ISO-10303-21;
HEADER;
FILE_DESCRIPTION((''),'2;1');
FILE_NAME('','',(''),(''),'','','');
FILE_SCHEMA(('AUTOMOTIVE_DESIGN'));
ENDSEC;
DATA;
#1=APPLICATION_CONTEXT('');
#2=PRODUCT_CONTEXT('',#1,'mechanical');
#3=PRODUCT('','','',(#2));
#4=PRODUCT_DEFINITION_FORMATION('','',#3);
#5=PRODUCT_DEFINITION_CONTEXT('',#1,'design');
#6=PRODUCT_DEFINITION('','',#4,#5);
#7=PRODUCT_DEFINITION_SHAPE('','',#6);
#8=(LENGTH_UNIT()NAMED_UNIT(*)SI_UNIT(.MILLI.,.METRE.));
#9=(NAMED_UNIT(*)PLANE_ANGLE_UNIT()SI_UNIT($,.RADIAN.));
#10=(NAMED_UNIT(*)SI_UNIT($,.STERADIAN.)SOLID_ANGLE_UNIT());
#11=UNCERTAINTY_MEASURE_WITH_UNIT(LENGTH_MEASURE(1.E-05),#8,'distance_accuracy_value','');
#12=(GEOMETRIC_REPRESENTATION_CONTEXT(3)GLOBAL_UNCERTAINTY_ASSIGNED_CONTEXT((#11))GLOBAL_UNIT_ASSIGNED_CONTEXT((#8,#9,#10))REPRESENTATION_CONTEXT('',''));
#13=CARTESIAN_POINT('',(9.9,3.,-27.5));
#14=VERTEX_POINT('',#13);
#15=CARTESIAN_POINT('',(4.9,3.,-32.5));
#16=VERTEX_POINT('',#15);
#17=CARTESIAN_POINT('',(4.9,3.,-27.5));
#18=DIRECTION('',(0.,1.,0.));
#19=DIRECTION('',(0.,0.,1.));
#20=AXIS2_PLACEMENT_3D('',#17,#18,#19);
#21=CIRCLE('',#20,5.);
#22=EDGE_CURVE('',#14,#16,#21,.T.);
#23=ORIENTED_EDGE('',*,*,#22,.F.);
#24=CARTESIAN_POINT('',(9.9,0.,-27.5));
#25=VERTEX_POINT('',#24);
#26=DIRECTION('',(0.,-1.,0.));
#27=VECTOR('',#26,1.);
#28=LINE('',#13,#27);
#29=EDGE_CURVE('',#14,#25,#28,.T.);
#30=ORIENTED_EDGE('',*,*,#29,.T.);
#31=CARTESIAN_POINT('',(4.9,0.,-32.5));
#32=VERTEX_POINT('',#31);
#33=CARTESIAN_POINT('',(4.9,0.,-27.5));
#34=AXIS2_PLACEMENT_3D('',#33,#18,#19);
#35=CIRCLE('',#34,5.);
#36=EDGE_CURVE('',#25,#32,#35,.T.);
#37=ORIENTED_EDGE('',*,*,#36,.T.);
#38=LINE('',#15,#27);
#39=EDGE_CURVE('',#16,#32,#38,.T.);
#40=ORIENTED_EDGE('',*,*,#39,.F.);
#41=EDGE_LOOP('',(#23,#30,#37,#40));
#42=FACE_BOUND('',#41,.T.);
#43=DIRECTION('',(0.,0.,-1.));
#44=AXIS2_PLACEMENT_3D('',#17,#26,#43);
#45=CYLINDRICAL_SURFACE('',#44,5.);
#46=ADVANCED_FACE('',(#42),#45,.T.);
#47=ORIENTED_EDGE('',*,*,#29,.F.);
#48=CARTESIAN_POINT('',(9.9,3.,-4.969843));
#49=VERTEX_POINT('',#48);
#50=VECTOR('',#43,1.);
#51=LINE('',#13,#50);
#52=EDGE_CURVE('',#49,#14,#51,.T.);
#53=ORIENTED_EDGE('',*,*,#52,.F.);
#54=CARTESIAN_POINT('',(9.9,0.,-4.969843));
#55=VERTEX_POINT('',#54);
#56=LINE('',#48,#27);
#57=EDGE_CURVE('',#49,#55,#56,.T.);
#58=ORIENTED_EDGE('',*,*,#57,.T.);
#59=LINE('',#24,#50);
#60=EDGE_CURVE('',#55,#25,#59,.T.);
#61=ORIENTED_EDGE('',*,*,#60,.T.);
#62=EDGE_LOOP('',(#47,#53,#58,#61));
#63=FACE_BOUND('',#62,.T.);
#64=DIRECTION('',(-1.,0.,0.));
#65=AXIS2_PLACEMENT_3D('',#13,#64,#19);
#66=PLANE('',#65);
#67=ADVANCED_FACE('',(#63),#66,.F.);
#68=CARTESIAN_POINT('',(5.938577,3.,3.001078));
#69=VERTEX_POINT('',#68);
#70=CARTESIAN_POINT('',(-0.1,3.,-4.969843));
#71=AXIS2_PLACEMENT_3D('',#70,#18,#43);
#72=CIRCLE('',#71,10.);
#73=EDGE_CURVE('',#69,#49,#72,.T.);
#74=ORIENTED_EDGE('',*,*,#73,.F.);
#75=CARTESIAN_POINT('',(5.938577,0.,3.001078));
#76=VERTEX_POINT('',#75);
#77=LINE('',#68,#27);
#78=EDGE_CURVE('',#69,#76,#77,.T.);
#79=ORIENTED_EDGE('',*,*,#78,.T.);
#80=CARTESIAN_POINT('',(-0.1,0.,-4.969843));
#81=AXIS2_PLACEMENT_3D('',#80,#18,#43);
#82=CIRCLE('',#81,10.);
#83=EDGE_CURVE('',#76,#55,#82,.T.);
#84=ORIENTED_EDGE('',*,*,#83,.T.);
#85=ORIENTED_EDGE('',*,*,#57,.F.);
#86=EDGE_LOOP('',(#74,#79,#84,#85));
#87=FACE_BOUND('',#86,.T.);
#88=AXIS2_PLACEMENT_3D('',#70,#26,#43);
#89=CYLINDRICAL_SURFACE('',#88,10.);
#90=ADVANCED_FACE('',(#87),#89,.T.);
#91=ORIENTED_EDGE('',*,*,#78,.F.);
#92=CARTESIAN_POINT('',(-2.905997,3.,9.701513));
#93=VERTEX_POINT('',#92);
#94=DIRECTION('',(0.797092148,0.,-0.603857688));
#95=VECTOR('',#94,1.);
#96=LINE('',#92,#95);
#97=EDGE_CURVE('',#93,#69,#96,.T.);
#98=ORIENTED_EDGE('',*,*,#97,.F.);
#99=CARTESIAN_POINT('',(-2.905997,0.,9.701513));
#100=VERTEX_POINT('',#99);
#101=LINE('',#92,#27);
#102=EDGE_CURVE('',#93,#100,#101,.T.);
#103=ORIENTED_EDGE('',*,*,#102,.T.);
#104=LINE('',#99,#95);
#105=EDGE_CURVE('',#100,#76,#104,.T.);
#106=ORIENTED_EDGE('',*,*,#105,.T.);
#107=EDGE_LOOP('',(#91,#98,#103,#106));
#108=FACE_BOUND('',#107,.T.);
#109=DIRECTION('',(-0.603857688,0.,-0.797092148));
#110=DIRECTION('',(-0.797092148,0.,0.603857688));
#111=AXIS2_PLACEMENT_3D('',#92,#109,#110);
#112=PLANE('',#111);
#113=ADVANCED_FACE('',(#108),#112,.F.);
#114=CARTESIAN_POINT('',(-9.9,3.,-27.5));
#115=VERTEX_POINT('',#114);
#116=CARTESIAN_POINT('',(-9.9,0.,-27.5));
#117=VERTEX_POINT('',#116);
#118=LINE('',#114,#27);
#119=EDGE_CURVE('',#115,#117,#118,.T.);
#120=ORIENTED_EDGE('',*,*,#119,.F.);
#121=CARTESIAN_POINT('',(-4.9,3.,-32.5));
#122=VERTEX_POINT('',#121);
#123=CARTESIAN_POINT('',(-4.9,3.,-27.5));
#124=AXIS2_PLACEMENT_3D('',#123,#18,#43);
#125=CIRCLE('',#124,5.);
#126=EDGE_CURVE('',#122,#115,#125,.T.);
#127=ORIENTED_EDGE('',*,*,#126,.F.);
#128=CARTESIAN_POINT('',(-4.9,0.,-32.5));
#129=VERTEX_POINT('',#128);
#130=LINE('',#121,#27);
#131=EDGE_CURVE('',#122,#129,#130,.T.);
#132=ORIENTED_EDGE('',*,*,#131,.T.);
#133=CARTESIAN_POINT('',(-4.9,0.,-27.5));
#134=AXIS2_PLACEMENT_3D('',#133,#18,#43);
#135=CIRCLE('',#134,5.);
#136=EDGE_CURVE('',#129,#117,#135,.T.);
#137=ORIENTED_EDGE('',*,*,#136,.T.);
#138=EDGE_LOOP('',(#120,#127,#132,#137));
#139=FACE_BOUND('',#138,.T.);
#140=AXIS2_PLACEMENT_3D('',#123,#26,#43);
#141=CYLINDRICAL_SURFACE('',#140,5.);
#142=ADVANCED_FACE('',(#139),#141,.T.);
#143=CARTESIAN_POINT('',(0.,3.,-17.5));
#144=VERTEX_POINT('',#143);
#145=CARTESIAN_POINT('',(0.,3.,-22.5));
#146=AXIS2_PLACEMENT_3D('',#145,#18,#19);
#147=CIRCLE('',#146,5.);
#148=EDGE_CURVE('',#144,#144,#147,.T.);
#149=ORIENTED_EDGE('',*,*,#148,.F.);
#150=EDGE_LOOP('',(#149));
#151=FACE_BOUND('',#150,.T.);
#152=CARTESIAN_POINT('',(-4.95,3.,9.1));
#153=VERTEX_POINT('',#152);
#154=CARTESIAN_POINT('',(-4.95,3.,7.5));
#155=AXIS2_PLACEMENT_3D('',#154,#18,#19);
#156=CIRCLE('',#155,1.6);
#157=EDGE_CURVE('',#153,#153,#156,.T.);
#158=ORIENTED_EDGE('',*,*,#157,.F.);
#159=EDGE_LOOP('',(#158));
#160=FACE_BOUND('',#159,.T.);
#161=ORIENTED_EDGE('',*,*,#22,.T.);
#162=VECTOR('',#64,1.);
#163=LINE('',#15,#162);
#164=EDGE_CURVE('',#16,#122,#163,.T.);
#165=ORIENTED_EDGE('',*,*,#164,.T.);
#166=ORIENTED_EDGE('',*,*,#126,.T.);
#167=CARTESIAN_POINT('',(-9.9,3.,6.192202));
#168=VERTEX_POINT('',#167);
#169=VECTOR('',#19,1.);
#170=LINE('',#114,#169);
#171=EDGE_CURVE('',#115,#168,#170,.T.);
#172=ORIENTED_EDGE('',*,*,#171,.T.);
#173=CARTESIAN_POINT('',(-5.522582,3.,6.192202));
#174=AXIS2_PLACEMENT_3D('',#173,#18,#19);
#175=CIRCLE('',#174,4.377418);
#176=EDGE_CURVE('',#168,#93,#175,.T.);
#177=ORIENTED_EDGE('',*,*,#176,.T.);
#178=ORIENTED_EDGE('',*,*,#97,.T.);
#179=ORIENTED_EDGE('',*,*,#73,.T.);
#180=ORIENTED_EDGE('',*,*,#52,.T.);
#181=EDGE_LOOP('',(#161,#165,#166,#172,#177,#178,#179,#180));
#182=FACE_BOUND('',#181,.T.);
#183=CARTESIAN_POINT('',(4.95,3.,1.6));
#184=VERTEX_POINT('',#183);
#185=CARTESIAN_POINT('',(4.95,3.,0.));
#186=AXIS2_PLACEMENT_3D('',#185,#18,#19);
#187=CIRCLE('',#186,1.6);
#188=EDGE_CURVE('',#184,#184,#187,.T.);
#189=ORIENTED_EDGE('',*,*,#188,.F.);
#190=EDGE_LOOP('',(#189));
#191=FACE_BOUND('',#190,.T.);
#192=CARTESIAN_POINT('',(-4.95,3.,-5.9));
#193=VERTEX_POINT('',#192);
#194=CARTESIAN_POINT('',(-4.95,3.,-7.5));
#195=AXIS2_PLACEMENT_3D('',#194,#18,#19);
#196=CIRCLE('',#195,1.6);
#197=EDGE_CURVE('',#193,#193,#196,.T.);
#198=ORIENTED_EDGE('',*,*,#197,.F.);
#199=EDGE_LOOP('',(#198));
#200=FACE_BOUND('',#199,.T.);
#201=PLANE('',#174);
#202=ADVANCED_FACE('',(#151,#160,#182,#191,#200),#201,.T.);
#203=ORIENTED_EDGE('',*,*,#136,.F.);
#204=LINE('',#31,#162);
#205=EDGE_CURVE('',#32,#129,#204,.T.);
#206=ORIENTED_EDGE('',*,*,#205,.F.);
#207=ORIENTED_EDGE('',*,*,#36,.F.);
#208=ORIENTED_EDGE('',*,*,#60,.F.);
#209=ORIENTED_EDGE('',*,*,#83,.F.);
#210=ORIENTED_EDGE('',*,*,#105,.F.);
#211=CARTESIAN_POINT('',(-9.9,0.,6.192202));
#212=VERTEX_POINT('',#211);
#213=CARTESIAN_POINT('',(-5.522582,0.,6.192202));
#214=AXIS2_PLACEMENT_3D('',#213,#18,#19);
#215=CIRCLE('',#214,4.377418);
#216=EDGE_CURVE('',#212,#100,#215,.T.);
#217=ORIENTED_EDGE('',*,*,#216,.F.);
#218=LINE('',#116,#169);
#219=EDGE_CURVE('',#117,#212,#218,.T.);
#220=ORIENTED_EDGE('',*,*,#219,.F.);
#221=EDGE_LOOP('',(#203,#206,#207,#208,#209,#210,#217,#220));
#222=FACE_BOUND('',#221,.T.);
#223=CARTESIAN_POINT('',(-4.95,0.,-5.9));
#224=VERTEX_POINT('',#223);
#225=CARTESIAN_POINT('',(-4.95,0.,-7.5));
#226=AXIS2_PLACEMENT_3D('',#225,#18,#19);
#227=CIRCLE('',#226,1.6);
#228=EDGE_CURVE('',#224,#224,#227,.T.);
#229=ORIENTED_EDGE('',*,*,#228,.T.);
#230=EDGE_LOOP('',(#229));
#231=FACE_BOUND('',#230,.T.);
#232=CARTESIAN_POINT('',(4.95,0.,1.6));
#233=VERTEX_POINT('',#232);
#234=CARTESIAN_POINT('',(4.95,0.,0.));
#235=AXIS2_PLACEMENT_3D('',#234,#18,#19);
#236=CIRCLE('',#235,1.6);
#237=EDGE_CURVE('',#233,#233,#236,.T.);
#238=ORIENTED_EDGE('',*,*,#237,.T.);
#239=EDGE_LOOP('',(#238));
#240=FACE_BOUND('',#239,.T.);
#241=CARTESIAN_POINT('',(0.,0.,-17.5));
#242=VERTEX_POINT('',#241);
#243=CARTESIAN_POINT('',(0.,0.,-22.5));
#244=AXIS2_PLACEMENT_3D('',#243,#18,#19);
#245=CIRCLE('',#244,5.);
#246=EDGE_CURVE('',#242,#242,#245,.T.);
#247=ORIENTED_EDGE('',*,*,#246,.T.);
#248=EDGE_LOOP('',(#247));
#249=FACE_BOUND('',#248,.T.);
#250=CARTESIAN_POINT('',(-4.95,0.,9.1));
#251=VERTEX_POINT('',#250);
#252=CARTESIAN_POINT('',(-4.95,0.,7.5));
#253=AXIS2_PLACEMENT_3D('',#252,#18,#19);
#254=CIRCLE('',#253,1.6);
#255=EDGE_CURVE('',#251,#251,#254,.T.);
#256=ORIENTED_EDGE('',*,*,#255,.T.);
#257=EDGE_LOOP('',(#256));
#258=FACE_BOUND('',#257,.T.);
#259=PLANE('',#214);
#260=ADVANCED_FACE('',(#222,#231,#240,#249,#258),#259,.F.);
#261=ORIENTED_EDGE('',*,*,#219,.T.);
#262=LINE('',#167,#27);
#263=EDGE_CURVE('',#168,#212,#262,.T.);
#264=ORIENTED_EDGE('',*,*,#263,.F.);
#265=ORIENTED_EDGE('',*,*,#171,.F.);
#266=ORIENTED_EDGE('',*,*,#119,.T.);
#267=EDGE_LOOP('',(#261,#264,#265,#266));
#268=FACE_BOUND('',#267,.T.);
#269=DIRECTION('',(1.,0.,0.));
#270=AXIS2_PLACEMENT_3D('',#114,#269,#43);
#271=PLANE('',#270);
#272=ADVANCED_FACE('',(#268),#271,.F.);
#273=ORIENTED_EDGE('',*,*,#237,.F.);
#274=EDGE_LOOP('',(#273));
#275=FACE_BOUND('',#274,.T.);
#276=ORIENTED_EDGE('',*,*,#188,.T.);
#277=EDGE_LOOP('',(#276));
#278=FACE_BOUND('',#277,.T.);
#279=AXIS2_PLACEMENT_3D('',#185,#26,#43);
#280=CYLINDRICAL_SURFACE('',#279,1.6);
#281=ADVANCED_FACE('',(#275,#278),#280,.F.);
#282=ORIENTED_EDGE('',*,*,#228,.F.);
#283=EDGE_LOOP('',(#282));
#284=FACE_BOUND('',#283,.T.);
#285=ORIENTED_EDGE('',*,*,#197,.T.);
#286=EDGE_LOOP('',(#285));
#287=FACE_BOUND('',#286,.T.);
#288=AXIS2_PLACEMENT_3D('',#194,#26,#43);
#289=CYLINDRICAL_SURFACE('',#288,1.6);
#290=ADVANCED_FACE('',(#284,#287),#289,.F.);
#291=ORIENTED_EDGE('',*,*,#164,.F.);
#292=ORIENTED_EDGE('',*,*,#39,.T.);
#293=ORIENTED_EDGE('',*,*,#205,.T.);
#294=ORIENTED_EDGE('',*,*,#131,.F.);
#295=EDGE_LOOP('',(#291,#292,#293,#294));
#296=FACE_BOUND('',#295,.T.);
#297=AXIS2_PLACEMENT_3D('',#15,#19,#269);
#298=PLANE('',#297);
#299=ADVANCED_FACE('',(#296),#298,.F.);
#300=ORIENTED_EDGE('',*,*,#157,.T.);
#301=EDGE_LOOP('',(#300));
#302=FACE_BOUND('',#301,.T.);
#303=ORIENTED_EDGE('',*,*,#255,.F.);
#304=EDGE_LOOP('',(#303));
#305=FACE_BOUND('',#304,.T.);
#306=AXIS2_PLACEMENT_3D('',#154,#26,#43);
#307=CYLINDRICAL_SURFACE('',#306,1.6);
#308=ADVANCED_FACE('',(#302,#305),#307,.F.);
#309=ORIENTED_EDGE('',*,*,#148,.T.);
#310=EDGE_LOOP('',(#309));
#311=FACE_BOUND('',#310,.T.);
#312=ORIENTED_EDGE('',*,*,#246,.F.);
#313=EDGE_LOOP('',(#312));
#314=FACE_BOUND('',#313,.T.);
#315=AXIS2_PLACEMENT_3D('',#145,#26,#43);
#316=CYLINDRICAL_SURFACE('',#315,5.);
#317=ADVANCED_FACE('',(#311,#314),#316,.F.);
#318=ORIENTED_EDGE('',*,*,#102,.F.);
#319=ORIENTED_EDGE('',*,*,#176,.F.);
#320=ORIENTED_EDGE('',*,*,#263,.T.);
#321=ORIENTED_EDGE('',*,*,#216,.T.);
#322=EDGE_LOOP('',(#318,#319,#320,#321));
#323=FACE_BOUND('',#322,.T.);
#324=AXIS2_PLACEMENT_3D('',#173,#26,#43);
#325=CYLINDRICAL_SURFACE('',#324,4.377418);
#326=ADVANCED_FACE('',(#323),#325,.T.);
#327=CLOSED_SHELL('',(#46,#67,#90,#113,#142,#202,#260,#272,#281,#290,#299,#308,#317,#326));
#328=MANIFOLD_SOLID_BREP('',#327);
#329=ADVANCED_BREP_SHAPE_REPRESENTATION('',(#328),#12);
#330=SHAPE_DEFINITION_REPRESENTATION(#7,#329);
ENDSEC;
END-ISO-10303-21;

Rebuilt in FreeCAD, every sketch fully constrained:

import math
import FreeCAD as App
import Part
import Sketcher
from FreeCAD import Vector

doc = App.newDocument("Part")
body = doc.addObject("PartDesign::Body", "Body")

sketch1 = body.newObject("Sketcher::SketchObject", "Sketch")
sketch1.AttachmentSupport = (doc.getObject("XZ_Plane"), [""])
sketch1.MapMode = "FlatFace"
sketch1.addGeometry([
    Part.LineSegment(Vector(-9.9, -27.5, 0), Vector(-9.9, 6.192202, 0)),
    Part.ArcOfCircle(Part.Circle(Vector(-5.522582, 6.192202, 0), Vector(0, 0, 1), 4.377418), math.radians(53.29134), math.radians(180)),
    Part.LineSegment(Vector(-2.905997, 9.701513, 0), Vector(5.938577, 3.001078, 0)),
    Part.ArcOfCircle(Part.Circle(Vector(-0.1, -4.969843, 0), Vector(0, 0, 1), 10), math.radians(0), math.radians(52.853313)),
    Part.LineSegment(Vector(9.9, -4.969843, 0), Vector(9.9, -27.5, 0)),
    Part.ArcOfCircle(Part.Circle(Vector(4.9, -27.5, 0), Vector(0, 0, 1), 5), math.radians(-90), math.radians(0)),
    Part.LineSegment(Vector(4.9, -32.5, 0), Vector(-4.9, -32.5, 0)),
    Part.ArcOfCircle(Part.Circle(Vector(-4.9, -27.5, 0), Vector(0, 0, 1), 5), math.radians(180), math.radians(270)),
    Part.Circle(Vector(-4.95, 7.5, 0), Vector(0, 0, 1), 1.6),
    Part.Circle(Vector(-4.95, -7.5, 0), Vector(0, 0, 1), 1.6),
    Part.Circle(Vector(4.95, 0, 0), Vector(0, 0, 1), 1.6),
    Part.Circle(Vector(0, -22.5, 0), Vector(0, 0, 1), 5),
], False)
sketch1.addConstraint([
    Sketcher.Constraint("Tangent", 0, 2, 1, 2),
    Sketcher.Constraint("Coincident", 1, 1, 2, 1),
    Sketcher.Constraint("Tangent", 2, 2, 3, 2),
    Sketcher.Constraint("Tangent", 3, 1, 4, 1),
    Sketcher.Constraint("Tangent", 4, 2, 5, 2),
    Sketcher.Constraint("Tangent", 5, 1, 6, 1),
    Sketcher.Constraint("Tangent", 6, 2, 7, 2),
    Sketcher.Constraint("Tangent", 7, 1, 0, 1),
    Sketcher.Constraint("Vertical", 0),
    Sketcher.Constraint("Vertical", 4),
    Sketcher.Constraint("Horizontal", 6),
    Sketcher.Constraint("Equal", 5, 7),
    Sketcher.Constraint("Equal", 8, 9),
    Sketcher.Constraint("Equal", 9, 10),
    Sketcher.Constraint("Equal", 7, 11),
    Sketcher.Constraint("Symmetric", 8, 3, 9, 3, -1),
    Sketcher.Constraint("PointOnObject", 10, 3, -1),
    Sketcher.Constraint("PointOnObject", 11, 3, -2),
    Sketcher.Constraint("Diameter", 11, 10.0),
    Sketcher.Constraint("Radius", 3, 10.0),
    Sketcher.Constraint("Diameter", 8, 3.2),
    Sketcher.Constraint("DistanceX", 6, 2, 6, 1, 9.8),
    Sketcher.Constraint("DistanceY", 7, 3, 8, 3, 35.0),
    Sketcher.Constraint("DistanceY", 9, 3, 8, 3, 15.0),
    Sketcher.Constraint("DistanceY", 5, 3, 11, 3, 5.0),
    Sketcher.Constraint("DistanceX", 3, 3, -1, 1, 0.1),
    Sketcher.Constraint("DistanceX", 8, 3, 10, 3, 9.9),
    Sketcher.Constraint("DistanceX", 8, 3, -1, 1, 4.95),
    Sketcher.Constraint("DistanceY", 0, 1, 0, 2, 33.692202),
    Sketcher.Constraint("Radius", 1, 4.377418),
    Sketcher.Constraint("Distance", 2, 11.09605),
    Sketcher.Constraint("DistanceY", 4, 2, 4, 1, 22.530157),
])
pad1 = body.newObject("PartDesign::Pad", "Pad")
pad1.Profile = sketch1
pad1.Length = 3
pad1.Reversed = True

doc.recompute()
